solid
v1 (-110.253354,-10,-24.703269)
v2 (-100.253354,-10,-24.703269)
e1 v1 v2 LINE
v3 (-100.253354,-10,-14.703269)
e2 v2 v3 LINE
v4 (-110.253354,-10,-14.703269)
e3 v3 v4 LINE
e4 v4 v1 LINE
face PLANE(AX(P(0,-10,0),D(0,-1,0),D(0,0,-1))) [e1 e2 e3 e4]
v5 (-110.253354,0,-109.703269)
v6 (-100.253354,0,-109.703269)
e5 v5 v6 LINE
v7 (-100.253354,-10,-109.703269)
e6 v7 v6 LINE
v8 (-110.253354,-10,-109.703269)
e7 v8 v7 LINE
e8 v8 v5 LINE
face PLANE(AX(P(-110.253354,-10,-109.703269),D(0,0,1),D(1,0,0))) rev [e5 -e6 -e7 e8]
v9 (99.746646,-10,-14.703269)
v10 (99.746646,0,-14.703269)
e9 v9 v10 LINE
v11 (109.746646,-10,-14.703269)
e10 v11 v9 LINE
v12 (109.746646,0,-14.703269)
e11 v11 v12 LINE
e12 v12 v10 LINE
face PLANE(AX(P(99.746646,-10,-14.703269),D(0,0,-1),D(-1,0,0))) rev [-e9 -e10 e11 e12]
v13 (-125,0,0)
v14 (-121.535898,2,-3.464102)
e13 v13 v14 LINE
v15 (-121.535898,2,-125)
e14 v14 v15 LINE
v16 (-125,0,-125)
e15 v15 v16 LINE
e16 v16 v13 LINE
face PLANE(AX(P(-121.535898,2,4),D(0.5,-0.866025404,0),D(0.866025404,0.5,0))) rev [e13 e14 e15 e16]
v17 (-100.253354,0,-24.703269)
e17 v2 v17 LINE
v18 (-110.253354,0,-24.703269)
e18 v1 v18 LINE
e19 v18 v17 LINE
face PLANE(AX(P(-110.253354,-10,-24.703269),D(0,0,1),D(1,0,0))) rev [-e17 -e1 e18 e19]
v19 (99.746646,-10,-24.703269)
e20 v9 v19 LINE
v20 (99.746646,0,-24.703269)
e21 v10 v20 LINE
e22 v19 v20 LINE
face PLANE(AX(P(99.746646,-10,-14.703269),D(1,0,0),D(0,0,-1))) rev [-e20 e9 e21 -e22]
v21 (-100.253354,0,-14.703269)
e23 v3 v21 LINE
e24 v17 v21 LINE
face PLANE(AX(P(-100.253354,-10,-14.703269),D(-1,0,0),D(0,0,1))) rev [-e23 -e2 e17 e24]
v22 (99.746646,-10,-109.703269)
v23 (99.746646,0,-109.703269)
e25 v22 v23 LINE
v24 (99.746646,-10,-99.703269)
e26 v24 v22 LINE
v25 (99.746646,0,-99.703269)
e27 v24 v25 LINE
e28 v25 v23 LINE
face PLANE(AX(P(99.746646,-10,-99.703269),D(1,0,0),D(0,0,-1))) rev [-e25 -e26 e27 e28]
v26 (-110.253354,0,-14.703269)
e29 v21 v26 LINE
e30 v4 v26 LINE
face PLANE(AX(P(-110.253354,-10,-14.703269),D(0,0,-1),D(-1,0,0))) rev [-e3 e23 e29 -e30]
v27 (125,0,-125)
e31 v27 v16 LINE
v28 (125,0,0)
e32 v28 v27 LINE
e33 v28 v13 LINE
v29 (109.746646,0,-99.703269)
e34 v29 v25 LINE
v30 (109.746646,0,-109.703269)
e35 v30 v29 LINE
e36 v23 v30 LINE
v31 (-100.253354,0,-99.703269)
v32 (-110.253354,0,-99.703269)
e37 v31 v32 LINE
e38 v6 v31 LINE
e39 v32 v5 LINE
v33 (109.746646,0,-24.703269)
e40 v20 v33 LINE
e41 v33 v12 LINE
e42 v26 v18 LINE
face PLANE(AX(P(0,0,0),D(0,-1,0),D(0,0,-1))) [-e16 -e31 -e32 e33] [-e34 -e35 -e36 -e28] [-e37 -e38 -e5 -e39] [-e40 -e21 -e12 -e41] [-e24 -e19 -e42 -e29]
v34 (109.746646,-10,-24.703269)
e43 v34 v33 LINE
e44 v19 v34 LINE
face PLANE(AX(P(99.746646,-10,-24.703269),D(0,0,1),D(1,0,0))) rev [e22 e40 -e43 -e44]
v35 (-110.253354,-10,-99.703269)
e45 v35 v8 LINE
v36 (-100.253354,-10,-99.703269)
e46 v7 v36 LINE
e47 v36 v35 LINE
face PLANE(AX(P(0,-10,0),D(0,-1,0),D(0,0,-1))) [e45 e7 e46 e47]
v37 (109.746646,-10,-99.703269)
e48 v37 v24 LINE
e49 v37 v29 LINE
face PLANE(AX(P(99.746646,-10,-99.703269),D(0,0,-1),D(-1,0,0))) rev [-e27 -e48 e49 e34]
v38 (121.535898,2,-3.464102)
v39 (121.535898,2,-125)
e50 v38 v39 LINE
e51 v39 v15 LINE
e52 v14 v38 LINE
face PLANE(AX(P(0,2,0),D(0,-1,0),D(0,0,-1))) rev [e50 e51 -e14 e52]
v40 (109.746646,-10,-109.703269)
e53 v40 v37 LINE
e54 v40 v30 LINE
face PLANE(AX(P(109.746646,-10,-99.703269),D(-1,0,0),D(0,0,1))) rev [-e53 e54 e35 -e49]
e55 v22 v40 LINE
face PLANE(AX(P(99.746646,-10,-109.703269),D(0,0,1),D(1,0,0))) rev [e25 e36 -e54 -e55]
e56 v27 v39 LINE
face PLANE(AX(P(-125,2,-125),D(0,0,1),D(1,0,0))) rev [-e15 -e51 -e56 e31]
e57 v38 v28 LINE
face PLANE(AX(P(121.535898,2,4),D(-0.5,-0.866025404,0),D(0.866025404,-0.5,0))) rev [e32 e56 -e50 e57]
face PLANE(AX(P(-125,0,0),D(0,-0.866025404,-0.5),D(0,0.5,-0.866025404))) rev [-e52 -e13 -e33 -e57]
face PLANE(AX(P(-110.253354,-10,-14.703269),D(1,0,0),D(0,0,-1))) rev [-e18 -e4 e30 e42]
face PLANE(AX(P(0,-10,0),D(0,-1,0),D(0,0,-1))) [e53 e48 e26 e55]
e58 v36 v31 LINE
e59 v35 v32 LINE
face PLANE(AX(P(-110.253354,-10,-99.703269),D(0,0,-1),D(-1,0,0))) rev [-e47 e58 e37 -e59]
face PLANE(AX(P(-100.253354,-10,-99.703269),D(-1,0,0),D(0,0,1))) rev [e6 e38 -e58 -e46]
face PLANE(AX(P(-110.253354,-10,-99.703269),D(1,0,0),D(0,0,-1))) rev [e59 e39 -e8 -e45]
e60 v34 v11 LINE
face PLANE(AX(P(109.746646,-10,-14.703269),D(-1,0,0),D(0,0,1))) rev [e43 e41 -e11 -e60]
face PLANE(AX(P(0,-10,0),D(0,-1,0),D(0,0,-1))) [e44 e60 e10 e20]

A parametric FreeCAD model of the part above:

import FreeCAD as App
import Part
import Sketcher
Q = App.Units.Quantity

doc = App.newDocument("Part")
body = doc.addObject("PartDesign::Body", "Body")

sketch1 = body.newObject("Sketcher::SketchObject", "Sketch")
sketch1.AttachmentSupport = (doc.getObject("XZ_Plane"), [""])
sketch1.MapMode = "FlatFace"
sketch1.addGeometry([
    Part.LineSegment(App.Vector(-125, -125, 0), App.Vector(-125, 125, 0)),
    Part.LineSegment(App.Vector(-125, 125, 0), App.Vector(125, 125, 0)),
    Part.LineSegment(App.Vector(125, 125, 0), App.Vector(125, -125, 0)),
    Part.LineSegment(App.Vector(125, -125, 0), App.Vector(-125, -125, 0)),
], False)
sketch1.addConstraint([
    Sketcher.Constraint("Coincident", 0, 2, 1, 1),
    Sketcher.Constraint("Coincident", 1, 2, 2, 1),
    Sketcher.Constraint("Coincident", 2, 2, 3, 1),
    Sketcher.Constraint("Coincident", 3, 2, 0, 1),
    Sketcher.Constraint("Vertical", 0),
    Sketcher.Constraint("Horizontal", 1),
    Sketcher.Constraint("Vertical", 2),
    Sketcher.Constraint("Horizontal", 3),
    Sketcher.Constraint("Symmetric", 0, 2, 2, 2, -1, 1),
    Sketcher.Constraint("Equal", 3, 0),
    Sketcher.Constraint("DistanceX", 1, 1, 1, 2, Q("250 mm")),
])
pad1 = body.newObject("PartDesign::Pad", "Pad")
pad1.Profile = sketch1
pad1.Length = 2
pad1.Reversed = True

sketch2 = body.newObject("Sketcher::SketchObject", "Sketch001")
sketch2.AttachmentSupport = (doc.getObject("XZ_Plane"), [""])
sketch2.MapMode = "FlatFace"
sketch2.AttachmentOffset = App.Placement(App.Vector(0, 0, -2), App.Rotation())
sketch2.addGeometry([
    Part.LineSegment(App.Vector(-125, 0, 0), App.Vector(-125, 125, 0)),
    Part.LineSegment(App.Vector(-125, 125, 0), App.Vector(125, 125, 0)),
    Part.LineSegment(App.Vector(125, 125, 0), App.Vector(125, 0, 0)),
    Part.LineSegment(App.Vector(125, 0, 0), App.Vector(-125, 0, 0)),
], False)
sketch2.addConstraint([
    Sketcher.Constraint("Coincident", 0, 2, 1, 1),
    Sketcher.Constraint("Coincident", 1, 2, 2, 1),
    Sketcher.Constraint("Coincident", 2, 2, 3, 1),
    Sketcher.Constraint("Coincident", 3, 2, 0, 1),
    Sketcher.Constraint("Vertical", 0),
    Sketcher.Constraint("Horizontal", 1),
    Sketcher.Constraint("Vertical", 2),
    Sketcher.Constraint("Horizontal", 3),
    Sketcher.Constraint("Symmetric", 2, 2, 3, 2, -1, 1),
    Sketcher.Constraint("DistanceX", 1, 1, 1, 2, Q("250 mm")),
    Sketcher.Constraint("DistanceY", 0, 1, 0, 2, Q("125 mm")),
])
pocket1 = body.newObject("PartDesign::Pocket", "Pocket")
pocket1.Profile = sketch2
pocket1.Length = 2
pocket1.Reversed = True

sketch3 = body.newObject("Sketcher::SketchObject", "Sketch002")
sketch3.AttachmentSupport = (doc.getObject("XZ_Plane"), [""])
sketch3.MapMode = "FlatFace"
sketch3.addGeometry([
    Part.LineSegment(App.Vector(-110, -15, 0), App.Vector(-110, -25, 0)),
    Part.LineSegment(App.Vector(-110, -25, 0), App.Vector(-100, -25, 0)),
    Part.LineSegment(App.Vector(-100, -25, 0), App.Vector(-100, -15, 0)),
    Part.LineSegment(App.Vector(-100, -15, 0), App.Vector(-110, -15, 0)),
    Part.LineSegment(App.Vector(-110, -100, 0), App.Vector(-110, -110, 0)),
    Part.LineSegment(App.Vector(-110, -110, 0), App.Vector(-100, -110, 0)),
    Part.LineSegment(App.Vector(-100, -110, 0), App.Vector(-100, -100, 0)),
    Part.LineSegment(App.Vector(-100, -100, 0), App.Vector(-110, -100, 0)),
    Part.LineSegment(App.Vector(100, -15, 0), App.Vector(100, -25, 0)),
    Part.LineSegment(App.Vector(100, -25, 0), App.Vector(110, -25, 0)),
    Part.LineSegment(App.Vector(110, -25, 0), App.Vector(110, -15, 0)),
    Part.LineSegment(App.Vector(110, -15, 0), App.Vector(100, -15, 0)),
    Part.LineSegment(App.Vector(100, -100, 0), App.Vector(100, -110, 0)),
    Part.LineSegment(App.Vector(100, -110, 0), App.Vector(110, -110, 0)),
    Part.LineSegment(App.Vector(110, -110, 0), App.Vector(110, -100, 0)),
    Part.LineSegment(App.Vector(110, -100, 0), App.Vector(100, -100, 0)),
], False)
sketch3.addConstraint([
    Sketcher.Constraint("Coincident", 0, 2, 1, 1),
    Sketcher.Constraint("Coincident", 1, 2, 2, 1),
    Sketcher.Constraint("Coincident", 2, 2, 3, 1),
    Sketcher.Constraint("Coincident", 3, 2, 0, 1),
    Sketcher.Constraint("Coincident", 4, 2, 5, 1),
    Sketcher.Constraint("Coincident", 5, 2, 6, 1),
    Sketcher.Constraint("Coincident", 6, 2, 7, 1),
    Sketcher.Constraint("Coincident", 7, 2, 4, 1),
    Sketcher.Constraint("Coincident", 8, 2, 9, 1),
    Sketcher.Constraint("Coincident", 9, 2, 10, 1),
    Sketcher.Constraint("Coincident", 10, 2, 11, 1),
    Sketcher.Constraint("Coincident", 11, 2, 8, 1),
    Sketcher.Constraint("Coincident", 12, 2, 13, 1),
    Sketcher.Constraint("Coincident", 13, 2, 14, 1),
    Sketcher.Constraint("Coincident", 14, 2, 15, 1),
    Sketcher.Constraint("Coincident", 15, 2, 12, 1),
    Sketcher.Constraint("Vertical", 0),
    Sketcher.Constraint("Horizontal", 1),
    Sketcher.Constraint("Vertical", 2),
    Sketcher.Constraint("Horizontal", 3),
    Sketcher.Constraint("Vertical", 4),
    Sketcher.Constraint("Horizontal", 5),
    Sketcher.Constraint("Vertical", 6),
    Sketcher.Constraint("Horizontal", 7),
    Sketcher.Constraint("Vertical", 8),
    Sketcher.Constraint("Horizontal", 9),
    Sketcher.Constraint("Vertical", 10),
    Sketcher.Constraint("Horizontal", 11),
    Sketcher.Constraint("Vertical", 12),
    Sketcher.Constraint("Horizontal", 13),
    Sketcher.Constraint("Vertical", 14),
    Sketcher.Constraint("Horizontal", 15),
    Sketcher.Constraint("Horizontal", 1, 2, 8, 2),
    Sketcher.Constraint("Horizontal", 3, 2, 10, 2),
    Sketcher.Constraint("Horizontal", 5, 2, 12, 2),
    Sketcher.Constraint("Horizontal", 7, 2, 14, 2),
    Sketcher.Constraint("Vertical", 3, 2, 4, 2),
    Sketcher.Constraint("Vertical", 2, 2, 5, 2),
    Sketcher.Constraint("Vertical", 11, 2, 12, 2),
    Sketcher.Constraint("Vertical", 10, 2, 13, 2),
    Sketcher.Constraint("Equal", 7, 9),
    Sketcher.Constraint("Equal", 15, 0),
    Sketcher.Constraint("Equal", 2, 4),
    Sketcher.Constraint("DistanceX", 1, 1, 1, 2, Q("10 mm")),
    Sketcher.Constraint("DistanceY", 4, 2, 0, 2, Q("85 mm")),
    Sketcher.Constraint("DistanceX", 1, 2, 8, 2, Q("200 mm")),
    Sketcher.Constraint("DistanceY", 0, 2, -1, 1, Q("24.703269 mm")),
    Sketcher.Constraint("DistanceX", 0, 2, -1, 1, Q("110.253354 mm")),
])
pad2 = body.newObject("PartDesign::Pad", "Pad001")
pad2.Profile = sketch3
pad2.Length = 10

sketch4 = body.newObject("Sketcher::SketchObject", "Sketch003")
sketch4.AttachmentSupport = (doc.getObject("XY_Plane"), [""])
sketch4.MapMode = "FlatFace"
sketch4.AttachmentOffset = App.Placement(App.Vector(0, 0, -125), App.Rotation())
sketch4.addGeometry([
    Part.LineSegment(App.Vector(125, 2, 0), App.Vector(125, 0, 0)),
    Part.LineSegment(App.Vector(125, 0, 0), App.Vector(121.5, 2, 0)),
    Part.LineSegment(App.Vector(121.5, 2, 0), App.Vector(125, 2, 0)),
    Part.LineSegment(App.Vector(-125, 2, 0), App.Vector(-121.5, 2, 0)),
    Part.LineSegment(App.Vector(-121.5, 2, 0), App.Vector(-125, 0, 0)),
    Part.LineSegment(App.Vector(-125, 0, 0), App.Vector(-125, 2, 0)),
], False)
sketch4.addConstraint([
    Sketcher.Constraint("Coincident", 0, 2, 1, 1),
    Sketcher.Constraint("Coincident", 1, 2, 2, 1),
    Sketcher.Constraint("Coincident", 2, 2, 0, 1),
    Sketcher.Constraint("Coincident", 3, 2, 4, 1),
    Sketcher.Constraint("Coincident", 4, 2, 5, 1),
    Sketcher.Constraint("Coincident", 5, 2, 3, 1),
    Sketcher.Constraint("Vertical", 0),
    Sketcher.Constraint("Horizontal", 2),
    Sketcher.Constraint("Horizontal", 3),
    Sketcher.Constraint("Vertical", 5),
    Sketcher.Constraint("Symmetric", 0, 2, 4, 2, -1, 1),
    Sketcher.Constraint("Symmetric", 1, 2, 3, 2, -2),
    Sketcher.Constraint("PointOnObject", 0, 2, -1),
    Sketcher.Constraint("DistanceY", 0, 2, 0, 1, Q("2 mm")),
    Sketcher.Constraint("Angle", 1, Q("150 deg")),
    Sketcher.Constraint("DistanceX", -1, 1, 0, 2, Q("125 mm")),
])
pocket2 = body.newObject("PartDesign::Pocket", "Pocket001")
pocket2.Profile = sketch4
pocket2.Length = 125
pocket2.Reversed = True

sketch5 = body.newObject("Sketcher::SketchObject", "Sketch004")
sketch5.AttachmentSupport = (doc.getObject("YZ_Plane"), [""])
sketch5.MapMode = "FlatFace"
sketch5.addGeometry([
    Part.LineSegment(App.Vector(2, 0, 0), App.Vector(0, 0, 0)),
    Part.LineSegment(App.Vector(0, 0, 0), App.Vector(2, -3.5, 0)),
    Part.LineSegment(App.Vector(2, -3.5, 0), App.Vector(2, 0, 0)),
], False)
sketch5.addConstraint([
    Sketcher.Constraint("Coincident", 0, 2, 1, 1),
    Sketcher.Constraint("Coincident", 1, 2, 2, 1),
    Sketcher.Constraint("Coincident", 2, 2, 0, 1),
    Sketcher.Constraint("Horizontal", 0),
    Sketcher.Constraint("Vertical", 2),
    Sketcher.Constraint("Coincident", 0, 2, -1, 1),
    Sketcher.Constraint("DistanceX", 0, 2, 0, 1, Q("2 mm")),
    Sketcher.Constraint("Angle", 1, Q("-60 deg")),
])
pocket3 = body.newObject("PartDesign::Pocket", "Pocket002")
pocket3.Profile = sketch5
pocket3.Type = "ThroughAll"
pocket3.Midplane = True

doc.recompute()
